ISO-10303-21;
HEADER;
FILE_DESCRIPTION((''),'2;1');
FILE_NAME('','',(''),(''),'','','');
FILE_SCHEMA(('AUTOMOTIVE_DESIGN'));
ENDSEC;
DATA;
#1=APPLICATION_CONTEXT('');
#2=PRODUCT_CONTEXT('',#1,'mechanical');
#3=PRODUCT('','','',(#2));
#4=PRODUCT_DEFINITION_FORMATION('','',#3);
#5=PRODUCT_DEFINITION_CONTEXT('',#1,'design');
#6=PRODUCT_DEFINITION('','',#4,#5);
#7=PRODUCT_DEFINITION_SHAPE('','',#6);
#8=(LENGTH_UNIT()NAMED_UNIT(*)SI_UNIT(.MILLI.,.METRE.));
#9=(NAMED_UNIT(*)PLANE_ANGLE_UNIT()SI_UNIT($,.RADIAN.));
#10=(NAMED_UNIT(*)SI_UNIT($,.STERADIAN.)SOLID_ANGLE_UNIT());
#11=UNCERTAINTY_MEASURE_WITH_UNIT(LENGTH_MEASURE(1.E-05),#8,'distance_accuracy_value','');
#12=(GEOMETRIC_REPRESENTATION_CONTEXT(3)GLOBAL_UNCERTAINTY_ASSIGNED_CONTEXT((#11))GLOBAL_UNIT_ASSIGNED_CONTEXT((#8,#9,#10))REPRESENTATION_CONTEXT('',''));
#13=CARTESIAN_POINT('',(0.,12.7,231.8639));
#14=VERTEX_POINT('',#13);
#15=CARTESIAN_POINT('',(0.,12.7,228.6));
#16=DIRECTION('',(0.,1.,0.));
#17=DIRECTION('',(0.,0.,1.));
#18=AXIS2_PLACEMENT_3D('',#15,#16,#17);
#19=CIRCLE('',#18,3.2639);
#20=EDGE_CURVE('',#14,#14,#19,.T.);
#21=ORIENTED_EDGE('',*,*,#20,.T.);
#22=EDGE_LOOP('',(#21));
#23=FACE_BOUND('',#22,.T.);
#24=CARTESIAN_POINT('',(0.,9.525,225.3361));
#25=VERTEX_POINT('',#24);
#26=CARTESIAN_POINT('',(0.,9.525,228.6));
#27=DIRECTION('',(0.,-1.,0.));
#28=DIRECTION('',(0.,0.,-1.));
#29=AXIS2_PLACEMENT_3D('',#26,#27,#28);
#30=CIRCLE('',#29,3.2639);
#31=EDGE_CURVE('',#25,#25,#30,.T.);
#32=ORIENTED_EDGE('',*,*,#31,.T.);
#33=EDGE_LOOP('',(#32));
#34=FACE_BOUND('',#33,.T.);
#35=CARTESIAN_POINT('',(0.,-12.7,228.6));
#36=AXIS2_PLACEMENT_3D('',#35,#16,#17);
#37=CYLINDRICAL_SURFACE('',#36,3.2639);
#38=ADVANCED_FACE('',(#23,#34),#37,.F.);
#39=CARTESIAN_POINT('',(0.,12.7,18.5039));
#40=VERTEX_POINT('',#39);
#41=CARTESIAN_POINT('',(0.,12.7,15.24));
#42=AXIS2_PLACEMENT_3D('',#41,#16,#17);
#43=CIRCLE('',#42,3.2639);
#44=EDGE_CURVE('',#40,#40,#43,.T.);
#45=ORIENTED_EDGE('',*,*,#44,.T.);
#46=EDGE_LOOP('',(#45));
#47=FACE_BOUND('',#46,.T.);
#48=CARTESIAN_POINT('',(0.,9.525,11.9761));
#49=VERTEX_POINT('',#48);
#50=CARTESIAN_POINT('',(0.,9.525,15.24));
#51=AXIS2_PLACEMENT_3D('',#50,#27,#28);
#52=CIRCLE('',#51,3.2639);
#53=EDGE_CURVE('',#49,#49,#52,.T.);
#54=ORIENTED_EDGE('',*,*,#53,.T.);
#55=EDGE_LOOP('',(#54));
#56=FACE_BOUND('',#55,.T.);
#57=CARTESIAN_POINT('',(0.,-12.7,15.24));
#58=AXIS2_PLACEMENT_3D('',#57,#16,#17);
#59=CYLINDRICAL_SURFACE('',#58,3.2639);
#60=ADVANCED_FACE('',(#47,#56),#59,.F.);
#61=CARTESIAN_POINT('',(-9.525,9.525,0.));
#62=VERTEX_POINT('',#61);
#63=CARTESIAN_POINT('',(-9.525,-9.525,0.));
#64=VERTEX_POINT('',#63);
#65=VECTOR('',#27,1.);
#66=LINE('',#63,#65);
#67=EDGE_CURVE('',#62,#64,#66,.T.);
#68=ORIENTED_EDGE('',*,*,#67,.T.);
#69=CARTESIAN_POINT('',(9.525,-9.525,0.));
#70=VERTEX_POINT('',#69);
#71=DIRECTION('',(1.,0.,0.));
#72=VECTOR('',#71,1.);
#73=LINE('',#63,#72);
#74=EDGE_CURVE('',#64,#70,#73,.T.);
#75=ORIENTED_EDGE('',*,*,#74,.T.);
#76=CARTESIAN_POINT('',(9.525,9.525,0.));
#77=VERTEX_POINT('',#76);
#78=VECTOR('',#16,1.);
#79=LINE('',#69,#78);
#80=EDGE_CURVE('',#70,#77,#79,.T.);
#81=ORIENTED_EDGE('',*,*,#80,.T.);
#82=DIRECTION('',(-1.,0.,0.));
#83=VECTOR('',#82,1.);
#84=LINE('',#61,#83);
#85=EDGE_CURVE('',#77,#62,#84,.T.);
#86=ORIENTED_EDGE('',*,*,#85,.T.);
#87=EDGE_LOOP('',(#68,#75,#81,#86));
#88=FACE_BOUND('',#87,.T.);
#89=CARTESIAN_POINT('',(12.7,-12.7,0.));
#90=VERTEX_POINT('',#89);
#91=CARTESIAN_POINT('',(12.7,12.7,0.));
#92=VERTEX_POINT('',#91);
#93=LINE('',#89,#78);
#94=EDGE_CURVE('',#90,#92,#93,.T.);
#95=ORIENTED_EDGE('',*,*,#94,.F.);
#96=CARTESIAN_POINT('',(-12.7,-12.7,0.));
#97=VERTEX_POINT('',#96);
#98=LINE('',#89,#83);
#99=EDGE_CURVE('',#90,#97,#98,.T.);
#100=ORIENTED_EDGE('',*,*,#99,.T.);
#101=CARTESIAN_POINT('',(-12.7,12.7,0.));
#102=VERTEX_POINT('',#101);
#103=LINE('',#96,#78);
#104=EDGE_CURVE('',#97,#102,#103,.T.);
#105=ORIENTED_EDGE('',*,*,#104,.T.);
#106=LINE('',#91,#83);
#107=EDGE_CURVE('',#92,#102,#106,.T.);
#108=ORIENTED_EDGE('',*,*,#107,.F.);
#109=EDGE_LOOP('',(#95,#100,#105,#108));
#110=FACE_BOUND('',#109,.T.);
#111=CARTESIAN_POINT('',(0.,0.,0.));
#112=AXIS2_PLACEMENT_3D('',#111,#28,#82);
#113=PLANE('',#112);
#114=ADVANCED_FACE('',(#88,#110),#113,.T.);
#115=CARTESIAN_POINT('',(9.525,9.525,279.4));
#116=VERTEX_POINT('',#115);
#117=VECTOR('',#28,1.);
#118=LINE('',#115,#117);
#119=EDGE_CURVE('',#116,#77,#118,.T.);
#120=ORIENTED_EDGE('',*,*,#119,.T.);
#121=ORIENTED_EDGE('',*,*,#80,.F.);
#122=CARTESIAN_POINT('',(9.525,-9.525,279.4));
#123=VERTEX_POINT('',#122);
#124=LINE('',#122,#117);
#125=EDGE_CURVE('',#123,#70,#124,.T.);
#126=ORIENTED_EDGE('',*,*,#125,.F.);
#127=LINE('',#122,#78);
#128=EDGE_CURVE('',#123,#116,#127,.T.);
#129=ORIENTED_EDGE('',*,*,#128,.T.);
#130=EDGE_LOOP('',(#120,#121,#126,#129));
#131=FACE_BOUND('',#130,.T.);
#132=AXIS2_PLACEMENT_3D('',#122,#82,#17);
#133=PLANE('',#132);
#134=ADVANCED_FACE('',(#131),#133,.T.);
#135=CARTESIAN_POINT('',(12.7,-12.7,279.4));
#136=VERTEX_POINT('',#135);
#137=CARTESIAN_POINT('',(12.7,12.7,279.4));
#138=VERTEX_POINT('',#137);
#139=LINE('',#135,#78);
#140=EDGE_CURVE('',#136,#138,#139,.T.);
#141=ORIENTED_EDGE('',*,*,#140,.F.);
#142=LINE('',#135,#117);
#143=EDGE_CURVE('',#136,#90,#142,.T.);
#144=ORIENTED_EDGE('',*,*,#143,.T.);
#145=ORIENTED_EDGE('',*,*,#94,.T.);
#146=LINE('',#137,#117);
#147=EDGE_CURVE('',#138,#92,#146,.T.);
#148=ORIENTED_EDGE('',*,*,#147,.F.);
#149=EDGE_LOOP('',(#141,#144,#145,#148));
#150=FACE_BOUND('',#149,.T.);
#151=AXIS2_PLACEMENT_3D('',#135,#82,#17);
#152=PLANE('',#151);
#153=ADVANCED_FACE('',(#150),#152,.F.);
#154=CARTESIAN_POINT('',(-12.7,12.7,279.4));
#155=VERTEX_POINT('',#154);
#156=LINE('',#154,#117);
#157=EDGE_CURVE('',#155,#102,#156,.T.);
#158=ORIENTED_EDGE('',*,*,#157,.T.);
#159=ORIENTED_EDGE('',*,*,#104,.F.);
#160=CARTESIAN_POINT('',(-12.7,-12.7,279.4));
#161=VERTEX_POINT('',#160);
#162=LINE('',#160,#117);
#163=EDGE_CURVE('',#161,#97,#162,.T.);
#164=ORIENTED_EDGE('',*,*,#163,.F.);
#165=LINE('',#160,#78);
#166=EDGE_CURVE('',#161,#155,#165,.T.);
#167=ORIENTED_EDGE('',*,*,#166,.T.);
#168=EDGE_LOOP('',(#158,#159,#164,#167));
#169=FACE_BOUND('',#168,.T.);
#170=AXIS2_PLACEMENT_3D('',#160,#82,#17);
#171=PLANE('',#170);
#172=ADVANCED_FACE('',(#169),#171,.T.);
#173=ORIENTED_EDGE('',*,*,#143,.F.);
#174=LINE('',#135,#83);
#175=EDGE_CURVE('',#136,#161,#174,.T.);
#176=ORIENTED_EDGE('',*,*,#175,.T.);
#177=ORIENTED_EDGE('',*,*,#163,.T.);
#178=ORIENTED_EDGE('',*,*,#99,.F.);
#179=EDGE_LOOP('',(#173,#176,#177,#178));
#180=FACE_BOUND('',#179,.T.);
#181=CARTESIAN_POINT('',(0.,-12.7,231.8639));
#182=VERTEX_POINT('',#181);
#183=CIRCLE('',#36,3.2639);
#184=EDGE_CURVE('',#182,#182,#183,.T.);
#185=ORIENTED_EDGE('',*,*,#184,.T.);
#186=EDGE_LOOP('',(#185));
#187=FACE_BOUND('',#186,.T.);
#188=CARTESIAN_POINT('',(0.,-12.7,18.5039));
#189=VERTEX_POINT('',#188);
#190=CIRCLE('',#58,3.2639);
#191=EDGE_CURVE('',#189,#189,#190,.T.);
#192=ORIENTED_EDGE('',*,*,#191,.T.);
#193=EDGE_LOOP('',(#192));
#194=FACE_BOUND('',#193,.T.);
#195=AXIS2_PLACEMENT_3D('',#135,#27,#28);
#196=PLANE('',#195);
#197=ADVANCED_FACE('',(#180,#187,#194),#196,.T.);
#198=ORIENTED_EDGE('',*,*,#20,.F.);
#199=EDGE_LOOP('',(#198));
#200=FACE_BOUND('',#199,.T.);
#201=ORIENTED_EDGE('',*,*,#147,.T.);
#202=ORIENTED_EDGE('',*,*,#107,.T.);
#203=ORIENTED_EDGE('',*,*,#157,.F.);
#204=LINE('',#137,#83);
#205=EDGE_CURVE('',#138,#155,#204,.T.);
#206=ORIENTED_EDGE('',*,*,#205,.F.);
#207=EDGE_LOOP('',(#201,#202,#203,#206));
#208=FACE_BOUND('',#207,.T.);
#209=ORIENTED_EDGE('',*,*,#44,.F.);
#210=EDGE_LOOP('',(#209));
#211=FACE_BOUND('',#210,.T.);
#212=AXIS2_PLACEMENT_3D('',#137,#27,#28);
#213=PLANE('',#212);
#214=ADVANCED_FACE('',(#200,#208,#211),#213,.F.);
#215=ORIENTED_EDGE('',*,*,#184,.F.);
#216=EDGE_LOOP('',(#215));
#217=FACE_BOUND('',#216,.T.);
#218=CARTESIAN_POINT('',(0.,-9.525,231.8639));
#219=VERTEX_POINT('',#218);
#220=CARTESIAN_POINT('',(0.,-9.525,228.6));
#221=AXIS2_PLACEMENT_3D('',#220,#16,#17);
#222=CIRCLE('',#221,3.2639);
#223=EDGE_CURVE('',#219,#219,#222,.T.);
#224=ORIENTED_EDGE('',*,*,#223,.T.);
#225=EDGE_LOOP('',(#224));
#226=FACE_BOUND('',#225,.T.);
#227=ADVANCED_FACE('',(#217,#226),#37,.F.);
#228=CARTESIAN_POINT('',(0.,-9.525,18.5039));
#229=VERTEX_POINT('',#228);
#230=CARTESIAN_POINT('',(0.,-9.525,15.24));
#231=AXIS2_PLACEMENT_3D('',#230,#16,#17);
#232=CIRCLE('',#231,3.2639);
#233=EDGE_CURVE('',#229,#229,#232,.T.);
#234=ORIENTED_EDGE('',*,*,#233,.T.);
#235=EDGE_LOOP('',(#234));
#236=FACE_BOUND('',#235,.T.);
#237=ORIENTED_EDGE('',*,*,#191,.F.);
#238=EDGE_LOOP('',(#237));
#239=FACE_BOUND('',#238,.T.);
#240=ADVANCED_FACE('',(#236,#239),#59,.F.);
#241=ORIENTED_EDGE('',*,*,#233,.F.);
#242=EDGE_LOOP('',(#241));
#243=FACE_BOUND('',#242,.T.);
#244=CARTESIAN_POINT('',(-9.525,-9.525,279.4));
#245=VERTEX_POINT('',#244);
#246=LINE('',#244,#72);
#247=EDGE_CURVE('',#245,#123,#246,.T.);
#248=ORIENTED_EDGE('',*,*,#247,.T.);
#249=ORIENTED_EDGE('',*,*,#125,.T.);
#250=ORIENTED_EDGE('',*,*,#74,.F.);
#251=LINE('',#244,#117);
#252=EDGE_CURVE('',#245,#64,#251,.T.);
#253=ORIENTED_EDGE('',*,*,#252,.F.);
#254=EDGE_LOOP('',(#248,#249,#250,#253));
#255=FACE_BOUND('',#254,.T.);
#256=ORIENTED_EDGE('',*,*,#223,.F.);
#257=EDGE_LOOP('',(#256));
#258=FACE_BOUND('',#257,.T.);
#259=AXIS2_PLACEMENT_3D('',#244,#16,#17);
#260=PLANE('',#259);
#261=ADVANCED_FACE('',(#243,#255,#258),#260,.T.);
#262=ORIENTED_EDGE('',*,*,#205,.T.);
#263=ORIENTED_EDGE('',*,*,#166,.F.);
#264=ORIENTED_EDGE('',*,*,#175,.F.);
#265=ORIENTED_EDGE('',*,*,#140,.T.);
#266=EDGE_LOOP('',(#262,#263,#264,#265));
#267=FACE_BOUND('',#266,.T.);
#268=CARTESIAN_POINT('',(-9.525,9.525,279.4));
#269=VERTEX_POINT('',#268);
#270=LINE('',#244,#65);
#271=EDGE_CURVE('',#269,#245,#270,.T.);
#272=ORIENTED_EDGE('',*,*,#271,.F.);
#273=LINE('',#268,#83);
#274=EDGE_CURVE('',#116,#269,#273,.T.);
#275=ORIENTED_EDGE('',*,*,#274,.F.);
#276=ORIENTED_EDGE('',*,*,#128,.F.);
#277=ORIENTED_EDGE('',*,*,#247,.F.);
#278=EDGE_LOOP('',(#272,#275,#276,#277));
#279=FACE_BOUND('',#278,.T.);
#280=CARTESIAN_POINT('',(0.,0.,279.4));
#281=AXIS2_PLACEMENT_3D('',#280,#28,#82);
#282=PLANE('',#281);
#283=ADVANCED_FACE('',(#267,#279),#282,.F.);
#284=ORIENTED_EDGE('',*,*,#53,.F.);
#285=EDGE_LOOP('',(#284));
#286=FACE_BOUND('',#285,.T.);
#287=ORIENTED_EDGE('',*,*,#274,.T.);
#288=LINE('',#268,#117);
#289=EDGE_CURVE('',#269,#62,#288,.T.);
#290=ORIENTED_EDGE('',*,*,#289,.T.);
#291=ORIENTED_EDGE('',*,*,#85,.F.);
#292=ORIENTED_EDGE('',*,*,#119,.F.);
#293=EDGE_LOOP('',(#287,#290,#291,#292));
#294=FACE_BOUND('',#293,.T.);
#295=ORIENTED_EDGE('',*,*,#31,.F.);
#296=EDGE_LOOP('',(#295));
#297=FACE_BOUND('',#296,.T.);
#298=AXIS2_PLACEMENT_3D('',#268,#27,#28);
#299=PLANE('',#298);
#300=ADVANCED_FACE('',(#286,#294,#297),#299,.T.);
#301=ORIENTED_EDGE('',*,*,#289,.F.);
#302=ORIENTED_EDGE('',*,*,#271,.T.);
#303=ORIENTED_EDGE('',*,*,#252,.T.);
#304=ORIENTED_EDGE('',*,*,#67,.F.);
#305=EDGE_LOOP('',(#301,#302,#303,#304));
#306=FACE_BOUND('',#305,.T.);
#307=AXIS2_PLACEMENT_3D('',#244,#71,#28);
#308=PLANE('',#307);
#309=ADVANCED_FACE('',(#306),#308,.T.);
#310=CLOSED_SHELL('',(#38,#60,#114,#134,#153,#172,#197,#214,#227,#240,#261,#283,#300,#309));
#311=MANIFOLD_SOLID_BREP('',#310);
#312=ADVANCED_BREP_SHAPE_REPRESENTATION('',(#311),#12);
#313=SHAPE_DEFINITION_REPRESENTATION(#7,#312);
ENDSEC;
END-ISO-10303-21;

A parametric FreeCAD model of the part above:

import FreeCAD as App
import Part
import Sketcher

V = App.Vector
Q = App.Units.Quantity


def add_polygon(sketch, points):
    """Adds a closed chain of lines whose ends are joined by coincident constraints."""
    first, n = sketch.GeometryCount, len(points)
    for a, b in zip(points, points[1:] + points[:1]):
        sketch.addGeometry(Part.LineSegment(App.Vector(*a, 0), App.Vector(*b, 0)), False)
    for i in range(n):
        sketch.addConstraint(Sketcher.Constraint("Coincident", first + i, 2, first + (i + 1) % n, 1))

doc = App.newDocument("Part")
params = doc.addObject("Spreadsheet::Sheet", "Params")
for row, (alias, value) in enumerate([
    ("sketch1_width", "1 in"),
    ("pad1_length", "11 in"),
    ("sketch2_width", "0.75 in"),
    ("sketch3_diameter", "0.257 in"),
    ("sketch4_diameter", "0.257 in"),
], start=1):
    params.set(f"A{row}", alias)
    params.set(f"B{row}", "=" + value)
    params.setAlias(f"B{row}", alias)

body = doc.addObject("PartDesign::Body", "Body")

# Sketch on XY plane
sketch1 = body.newObject("Sketcher::SketchObject", "Sketch")
sketch1.AttachmentSupport = (doc.getObject("XY_Plane"), [""])
sketch1.MapMode = "FlatFace"
add_polygon(sketch1, [(-12.7, 12.7), (-12.7, -12.7), (12.7, -12.7), (12.7, 12.7)])  # lines 0-3
sketch1.addConstraint([
    Sketcher.Constraint("Vertical", 0),
    Sketcher.Constraint("Horizontal", 1),
    Sketcher.Constraint("Vertical", 2),
    Sketcher.Constraint("Horizontal", 3),
    Sketcher.Constraint("Symmetric", 0, 2, 2, 2, -1, 1),
    Sketcher.Constraint("Equal", 3, 0),
    Sketcher.Constraint("DistanceX", 1, 1, 1, 2, Q("1 in")),
])
sketch1.setExpression("Constraints[10]", "Params.sketch1_width")
pad1 = body.newObject("PartDesign::Pad", "Pad")
pad1.Profile = sketch1
pad1.setExpression("Length", "Params.pad1_length")

# Sketch on XY plane
sketch2 = body.newObject("Sketcher::SketchObject", "Sketch001")
sketch2.AttachmentSupport = (doc.getObject("XY_Plane"), [""])
sketch2.MapMode = "FlatFace"
add_polygon(sketch2, [(-9.525, 9.525), (-9.525, -9.525), (9.525, -9.525), (9.525, 9.525)])  # lines 0-3
sketch2.addConstraint([
    Sketcher.Constraint("Vertical", 0),
    Sketcher.Constraint("Horizontal", 1),
    Sketcher.Constraint("Vertical", 2),
    Sketcher.Constraint("Horizontal", 3),
    Sketcher.Constraint("Symmetric", 0, 2, 2, 2, -1, 1),
    Sketcher.Constraint("Equal", 3, 0),
    Sketcher.Constraint("DistanceX", 1, 1, 1, 2, Q("0.75 in")),
])
sketch2.setExpression("Constraints[10]", "Params.sketch2_width")
pocket1 = body.newObject("PartDesign::Pocket", "Pocket")
pocket1.Profile = sketch2
pocket1.Type = "ThroughAll"
pocket1.Reversed = True

# Sketch on XZ plane
sketch3 = body.newObject("Sketcher::SketchObject", "Sketch002")
sketch3.AttachmentSupport = (doc.getObject("XZ_Plane"), [""])
sketch3.MapMode = "FlatFace"
sketch3.AttachmentOffset = App.Placement(V(0, 0, -0.5 * 25.4), App.Rotation())
sketch3.addGeometry(Part.Circle(V(0, 15.24, 0), V(0, 0, 1), 3.2639), False)
sketch3.addConstraint([
    Sketcher.Constraint("PointOnObject", 0, 3, -2),
    Sketcher.Constraint("Diameter", 0, Q("0.257 in")),
    Sketcher.Constraint("DistanceY", -1, 1, 0, 3, Q("0.6 in")),
])
sketch3.setExpression("Constraints[1]", "Params.sketch3_diameter")
pocket2 = body.newObject("PartDesign::Pocket", "Pocket001")
pocket2.Profile = sketch3
pocket2.Type = "ThroughAll"
pocket2.Reversed = True

# Sketch on XZ plane
sketch4 = body.newObject("Sketcher::SketchObject", "Sketch003")
sketch4.AttachmentSupport = (doc.getObject("XZ_Plane"), [""])
sketch4.MapMode = "FlatFace"
sketch4.AttachmentOffset = App.Placement(V(0, 0, -0.5 * 25.4), App.Rotation())
sketch4.addGeometry(Part.Circle(V(0, 228.6, 0), V(0, 0, 1), 3.2639), False)
sketch4.addConstraint([
    Sketcher.Constraint("PointOnObject", 0, 3, -2),
    Sketcher.Constraint("Diameter", 0, Q("0.257 in")),
    Sketcher.Constraint("DistanceY", -1, 1, 0, 3, Q("9 in")),
])
sketch4.setExpression("Constraints[1]", "Params.sketch4_diameter")
pocket3 = body.newObject("PartDesign::Pocket", "Pocket002")
pocket3.Profile = sketch4
pocket3.Type = "ThroughAll"
pocket3.Reversed = True

doc.recompute()
